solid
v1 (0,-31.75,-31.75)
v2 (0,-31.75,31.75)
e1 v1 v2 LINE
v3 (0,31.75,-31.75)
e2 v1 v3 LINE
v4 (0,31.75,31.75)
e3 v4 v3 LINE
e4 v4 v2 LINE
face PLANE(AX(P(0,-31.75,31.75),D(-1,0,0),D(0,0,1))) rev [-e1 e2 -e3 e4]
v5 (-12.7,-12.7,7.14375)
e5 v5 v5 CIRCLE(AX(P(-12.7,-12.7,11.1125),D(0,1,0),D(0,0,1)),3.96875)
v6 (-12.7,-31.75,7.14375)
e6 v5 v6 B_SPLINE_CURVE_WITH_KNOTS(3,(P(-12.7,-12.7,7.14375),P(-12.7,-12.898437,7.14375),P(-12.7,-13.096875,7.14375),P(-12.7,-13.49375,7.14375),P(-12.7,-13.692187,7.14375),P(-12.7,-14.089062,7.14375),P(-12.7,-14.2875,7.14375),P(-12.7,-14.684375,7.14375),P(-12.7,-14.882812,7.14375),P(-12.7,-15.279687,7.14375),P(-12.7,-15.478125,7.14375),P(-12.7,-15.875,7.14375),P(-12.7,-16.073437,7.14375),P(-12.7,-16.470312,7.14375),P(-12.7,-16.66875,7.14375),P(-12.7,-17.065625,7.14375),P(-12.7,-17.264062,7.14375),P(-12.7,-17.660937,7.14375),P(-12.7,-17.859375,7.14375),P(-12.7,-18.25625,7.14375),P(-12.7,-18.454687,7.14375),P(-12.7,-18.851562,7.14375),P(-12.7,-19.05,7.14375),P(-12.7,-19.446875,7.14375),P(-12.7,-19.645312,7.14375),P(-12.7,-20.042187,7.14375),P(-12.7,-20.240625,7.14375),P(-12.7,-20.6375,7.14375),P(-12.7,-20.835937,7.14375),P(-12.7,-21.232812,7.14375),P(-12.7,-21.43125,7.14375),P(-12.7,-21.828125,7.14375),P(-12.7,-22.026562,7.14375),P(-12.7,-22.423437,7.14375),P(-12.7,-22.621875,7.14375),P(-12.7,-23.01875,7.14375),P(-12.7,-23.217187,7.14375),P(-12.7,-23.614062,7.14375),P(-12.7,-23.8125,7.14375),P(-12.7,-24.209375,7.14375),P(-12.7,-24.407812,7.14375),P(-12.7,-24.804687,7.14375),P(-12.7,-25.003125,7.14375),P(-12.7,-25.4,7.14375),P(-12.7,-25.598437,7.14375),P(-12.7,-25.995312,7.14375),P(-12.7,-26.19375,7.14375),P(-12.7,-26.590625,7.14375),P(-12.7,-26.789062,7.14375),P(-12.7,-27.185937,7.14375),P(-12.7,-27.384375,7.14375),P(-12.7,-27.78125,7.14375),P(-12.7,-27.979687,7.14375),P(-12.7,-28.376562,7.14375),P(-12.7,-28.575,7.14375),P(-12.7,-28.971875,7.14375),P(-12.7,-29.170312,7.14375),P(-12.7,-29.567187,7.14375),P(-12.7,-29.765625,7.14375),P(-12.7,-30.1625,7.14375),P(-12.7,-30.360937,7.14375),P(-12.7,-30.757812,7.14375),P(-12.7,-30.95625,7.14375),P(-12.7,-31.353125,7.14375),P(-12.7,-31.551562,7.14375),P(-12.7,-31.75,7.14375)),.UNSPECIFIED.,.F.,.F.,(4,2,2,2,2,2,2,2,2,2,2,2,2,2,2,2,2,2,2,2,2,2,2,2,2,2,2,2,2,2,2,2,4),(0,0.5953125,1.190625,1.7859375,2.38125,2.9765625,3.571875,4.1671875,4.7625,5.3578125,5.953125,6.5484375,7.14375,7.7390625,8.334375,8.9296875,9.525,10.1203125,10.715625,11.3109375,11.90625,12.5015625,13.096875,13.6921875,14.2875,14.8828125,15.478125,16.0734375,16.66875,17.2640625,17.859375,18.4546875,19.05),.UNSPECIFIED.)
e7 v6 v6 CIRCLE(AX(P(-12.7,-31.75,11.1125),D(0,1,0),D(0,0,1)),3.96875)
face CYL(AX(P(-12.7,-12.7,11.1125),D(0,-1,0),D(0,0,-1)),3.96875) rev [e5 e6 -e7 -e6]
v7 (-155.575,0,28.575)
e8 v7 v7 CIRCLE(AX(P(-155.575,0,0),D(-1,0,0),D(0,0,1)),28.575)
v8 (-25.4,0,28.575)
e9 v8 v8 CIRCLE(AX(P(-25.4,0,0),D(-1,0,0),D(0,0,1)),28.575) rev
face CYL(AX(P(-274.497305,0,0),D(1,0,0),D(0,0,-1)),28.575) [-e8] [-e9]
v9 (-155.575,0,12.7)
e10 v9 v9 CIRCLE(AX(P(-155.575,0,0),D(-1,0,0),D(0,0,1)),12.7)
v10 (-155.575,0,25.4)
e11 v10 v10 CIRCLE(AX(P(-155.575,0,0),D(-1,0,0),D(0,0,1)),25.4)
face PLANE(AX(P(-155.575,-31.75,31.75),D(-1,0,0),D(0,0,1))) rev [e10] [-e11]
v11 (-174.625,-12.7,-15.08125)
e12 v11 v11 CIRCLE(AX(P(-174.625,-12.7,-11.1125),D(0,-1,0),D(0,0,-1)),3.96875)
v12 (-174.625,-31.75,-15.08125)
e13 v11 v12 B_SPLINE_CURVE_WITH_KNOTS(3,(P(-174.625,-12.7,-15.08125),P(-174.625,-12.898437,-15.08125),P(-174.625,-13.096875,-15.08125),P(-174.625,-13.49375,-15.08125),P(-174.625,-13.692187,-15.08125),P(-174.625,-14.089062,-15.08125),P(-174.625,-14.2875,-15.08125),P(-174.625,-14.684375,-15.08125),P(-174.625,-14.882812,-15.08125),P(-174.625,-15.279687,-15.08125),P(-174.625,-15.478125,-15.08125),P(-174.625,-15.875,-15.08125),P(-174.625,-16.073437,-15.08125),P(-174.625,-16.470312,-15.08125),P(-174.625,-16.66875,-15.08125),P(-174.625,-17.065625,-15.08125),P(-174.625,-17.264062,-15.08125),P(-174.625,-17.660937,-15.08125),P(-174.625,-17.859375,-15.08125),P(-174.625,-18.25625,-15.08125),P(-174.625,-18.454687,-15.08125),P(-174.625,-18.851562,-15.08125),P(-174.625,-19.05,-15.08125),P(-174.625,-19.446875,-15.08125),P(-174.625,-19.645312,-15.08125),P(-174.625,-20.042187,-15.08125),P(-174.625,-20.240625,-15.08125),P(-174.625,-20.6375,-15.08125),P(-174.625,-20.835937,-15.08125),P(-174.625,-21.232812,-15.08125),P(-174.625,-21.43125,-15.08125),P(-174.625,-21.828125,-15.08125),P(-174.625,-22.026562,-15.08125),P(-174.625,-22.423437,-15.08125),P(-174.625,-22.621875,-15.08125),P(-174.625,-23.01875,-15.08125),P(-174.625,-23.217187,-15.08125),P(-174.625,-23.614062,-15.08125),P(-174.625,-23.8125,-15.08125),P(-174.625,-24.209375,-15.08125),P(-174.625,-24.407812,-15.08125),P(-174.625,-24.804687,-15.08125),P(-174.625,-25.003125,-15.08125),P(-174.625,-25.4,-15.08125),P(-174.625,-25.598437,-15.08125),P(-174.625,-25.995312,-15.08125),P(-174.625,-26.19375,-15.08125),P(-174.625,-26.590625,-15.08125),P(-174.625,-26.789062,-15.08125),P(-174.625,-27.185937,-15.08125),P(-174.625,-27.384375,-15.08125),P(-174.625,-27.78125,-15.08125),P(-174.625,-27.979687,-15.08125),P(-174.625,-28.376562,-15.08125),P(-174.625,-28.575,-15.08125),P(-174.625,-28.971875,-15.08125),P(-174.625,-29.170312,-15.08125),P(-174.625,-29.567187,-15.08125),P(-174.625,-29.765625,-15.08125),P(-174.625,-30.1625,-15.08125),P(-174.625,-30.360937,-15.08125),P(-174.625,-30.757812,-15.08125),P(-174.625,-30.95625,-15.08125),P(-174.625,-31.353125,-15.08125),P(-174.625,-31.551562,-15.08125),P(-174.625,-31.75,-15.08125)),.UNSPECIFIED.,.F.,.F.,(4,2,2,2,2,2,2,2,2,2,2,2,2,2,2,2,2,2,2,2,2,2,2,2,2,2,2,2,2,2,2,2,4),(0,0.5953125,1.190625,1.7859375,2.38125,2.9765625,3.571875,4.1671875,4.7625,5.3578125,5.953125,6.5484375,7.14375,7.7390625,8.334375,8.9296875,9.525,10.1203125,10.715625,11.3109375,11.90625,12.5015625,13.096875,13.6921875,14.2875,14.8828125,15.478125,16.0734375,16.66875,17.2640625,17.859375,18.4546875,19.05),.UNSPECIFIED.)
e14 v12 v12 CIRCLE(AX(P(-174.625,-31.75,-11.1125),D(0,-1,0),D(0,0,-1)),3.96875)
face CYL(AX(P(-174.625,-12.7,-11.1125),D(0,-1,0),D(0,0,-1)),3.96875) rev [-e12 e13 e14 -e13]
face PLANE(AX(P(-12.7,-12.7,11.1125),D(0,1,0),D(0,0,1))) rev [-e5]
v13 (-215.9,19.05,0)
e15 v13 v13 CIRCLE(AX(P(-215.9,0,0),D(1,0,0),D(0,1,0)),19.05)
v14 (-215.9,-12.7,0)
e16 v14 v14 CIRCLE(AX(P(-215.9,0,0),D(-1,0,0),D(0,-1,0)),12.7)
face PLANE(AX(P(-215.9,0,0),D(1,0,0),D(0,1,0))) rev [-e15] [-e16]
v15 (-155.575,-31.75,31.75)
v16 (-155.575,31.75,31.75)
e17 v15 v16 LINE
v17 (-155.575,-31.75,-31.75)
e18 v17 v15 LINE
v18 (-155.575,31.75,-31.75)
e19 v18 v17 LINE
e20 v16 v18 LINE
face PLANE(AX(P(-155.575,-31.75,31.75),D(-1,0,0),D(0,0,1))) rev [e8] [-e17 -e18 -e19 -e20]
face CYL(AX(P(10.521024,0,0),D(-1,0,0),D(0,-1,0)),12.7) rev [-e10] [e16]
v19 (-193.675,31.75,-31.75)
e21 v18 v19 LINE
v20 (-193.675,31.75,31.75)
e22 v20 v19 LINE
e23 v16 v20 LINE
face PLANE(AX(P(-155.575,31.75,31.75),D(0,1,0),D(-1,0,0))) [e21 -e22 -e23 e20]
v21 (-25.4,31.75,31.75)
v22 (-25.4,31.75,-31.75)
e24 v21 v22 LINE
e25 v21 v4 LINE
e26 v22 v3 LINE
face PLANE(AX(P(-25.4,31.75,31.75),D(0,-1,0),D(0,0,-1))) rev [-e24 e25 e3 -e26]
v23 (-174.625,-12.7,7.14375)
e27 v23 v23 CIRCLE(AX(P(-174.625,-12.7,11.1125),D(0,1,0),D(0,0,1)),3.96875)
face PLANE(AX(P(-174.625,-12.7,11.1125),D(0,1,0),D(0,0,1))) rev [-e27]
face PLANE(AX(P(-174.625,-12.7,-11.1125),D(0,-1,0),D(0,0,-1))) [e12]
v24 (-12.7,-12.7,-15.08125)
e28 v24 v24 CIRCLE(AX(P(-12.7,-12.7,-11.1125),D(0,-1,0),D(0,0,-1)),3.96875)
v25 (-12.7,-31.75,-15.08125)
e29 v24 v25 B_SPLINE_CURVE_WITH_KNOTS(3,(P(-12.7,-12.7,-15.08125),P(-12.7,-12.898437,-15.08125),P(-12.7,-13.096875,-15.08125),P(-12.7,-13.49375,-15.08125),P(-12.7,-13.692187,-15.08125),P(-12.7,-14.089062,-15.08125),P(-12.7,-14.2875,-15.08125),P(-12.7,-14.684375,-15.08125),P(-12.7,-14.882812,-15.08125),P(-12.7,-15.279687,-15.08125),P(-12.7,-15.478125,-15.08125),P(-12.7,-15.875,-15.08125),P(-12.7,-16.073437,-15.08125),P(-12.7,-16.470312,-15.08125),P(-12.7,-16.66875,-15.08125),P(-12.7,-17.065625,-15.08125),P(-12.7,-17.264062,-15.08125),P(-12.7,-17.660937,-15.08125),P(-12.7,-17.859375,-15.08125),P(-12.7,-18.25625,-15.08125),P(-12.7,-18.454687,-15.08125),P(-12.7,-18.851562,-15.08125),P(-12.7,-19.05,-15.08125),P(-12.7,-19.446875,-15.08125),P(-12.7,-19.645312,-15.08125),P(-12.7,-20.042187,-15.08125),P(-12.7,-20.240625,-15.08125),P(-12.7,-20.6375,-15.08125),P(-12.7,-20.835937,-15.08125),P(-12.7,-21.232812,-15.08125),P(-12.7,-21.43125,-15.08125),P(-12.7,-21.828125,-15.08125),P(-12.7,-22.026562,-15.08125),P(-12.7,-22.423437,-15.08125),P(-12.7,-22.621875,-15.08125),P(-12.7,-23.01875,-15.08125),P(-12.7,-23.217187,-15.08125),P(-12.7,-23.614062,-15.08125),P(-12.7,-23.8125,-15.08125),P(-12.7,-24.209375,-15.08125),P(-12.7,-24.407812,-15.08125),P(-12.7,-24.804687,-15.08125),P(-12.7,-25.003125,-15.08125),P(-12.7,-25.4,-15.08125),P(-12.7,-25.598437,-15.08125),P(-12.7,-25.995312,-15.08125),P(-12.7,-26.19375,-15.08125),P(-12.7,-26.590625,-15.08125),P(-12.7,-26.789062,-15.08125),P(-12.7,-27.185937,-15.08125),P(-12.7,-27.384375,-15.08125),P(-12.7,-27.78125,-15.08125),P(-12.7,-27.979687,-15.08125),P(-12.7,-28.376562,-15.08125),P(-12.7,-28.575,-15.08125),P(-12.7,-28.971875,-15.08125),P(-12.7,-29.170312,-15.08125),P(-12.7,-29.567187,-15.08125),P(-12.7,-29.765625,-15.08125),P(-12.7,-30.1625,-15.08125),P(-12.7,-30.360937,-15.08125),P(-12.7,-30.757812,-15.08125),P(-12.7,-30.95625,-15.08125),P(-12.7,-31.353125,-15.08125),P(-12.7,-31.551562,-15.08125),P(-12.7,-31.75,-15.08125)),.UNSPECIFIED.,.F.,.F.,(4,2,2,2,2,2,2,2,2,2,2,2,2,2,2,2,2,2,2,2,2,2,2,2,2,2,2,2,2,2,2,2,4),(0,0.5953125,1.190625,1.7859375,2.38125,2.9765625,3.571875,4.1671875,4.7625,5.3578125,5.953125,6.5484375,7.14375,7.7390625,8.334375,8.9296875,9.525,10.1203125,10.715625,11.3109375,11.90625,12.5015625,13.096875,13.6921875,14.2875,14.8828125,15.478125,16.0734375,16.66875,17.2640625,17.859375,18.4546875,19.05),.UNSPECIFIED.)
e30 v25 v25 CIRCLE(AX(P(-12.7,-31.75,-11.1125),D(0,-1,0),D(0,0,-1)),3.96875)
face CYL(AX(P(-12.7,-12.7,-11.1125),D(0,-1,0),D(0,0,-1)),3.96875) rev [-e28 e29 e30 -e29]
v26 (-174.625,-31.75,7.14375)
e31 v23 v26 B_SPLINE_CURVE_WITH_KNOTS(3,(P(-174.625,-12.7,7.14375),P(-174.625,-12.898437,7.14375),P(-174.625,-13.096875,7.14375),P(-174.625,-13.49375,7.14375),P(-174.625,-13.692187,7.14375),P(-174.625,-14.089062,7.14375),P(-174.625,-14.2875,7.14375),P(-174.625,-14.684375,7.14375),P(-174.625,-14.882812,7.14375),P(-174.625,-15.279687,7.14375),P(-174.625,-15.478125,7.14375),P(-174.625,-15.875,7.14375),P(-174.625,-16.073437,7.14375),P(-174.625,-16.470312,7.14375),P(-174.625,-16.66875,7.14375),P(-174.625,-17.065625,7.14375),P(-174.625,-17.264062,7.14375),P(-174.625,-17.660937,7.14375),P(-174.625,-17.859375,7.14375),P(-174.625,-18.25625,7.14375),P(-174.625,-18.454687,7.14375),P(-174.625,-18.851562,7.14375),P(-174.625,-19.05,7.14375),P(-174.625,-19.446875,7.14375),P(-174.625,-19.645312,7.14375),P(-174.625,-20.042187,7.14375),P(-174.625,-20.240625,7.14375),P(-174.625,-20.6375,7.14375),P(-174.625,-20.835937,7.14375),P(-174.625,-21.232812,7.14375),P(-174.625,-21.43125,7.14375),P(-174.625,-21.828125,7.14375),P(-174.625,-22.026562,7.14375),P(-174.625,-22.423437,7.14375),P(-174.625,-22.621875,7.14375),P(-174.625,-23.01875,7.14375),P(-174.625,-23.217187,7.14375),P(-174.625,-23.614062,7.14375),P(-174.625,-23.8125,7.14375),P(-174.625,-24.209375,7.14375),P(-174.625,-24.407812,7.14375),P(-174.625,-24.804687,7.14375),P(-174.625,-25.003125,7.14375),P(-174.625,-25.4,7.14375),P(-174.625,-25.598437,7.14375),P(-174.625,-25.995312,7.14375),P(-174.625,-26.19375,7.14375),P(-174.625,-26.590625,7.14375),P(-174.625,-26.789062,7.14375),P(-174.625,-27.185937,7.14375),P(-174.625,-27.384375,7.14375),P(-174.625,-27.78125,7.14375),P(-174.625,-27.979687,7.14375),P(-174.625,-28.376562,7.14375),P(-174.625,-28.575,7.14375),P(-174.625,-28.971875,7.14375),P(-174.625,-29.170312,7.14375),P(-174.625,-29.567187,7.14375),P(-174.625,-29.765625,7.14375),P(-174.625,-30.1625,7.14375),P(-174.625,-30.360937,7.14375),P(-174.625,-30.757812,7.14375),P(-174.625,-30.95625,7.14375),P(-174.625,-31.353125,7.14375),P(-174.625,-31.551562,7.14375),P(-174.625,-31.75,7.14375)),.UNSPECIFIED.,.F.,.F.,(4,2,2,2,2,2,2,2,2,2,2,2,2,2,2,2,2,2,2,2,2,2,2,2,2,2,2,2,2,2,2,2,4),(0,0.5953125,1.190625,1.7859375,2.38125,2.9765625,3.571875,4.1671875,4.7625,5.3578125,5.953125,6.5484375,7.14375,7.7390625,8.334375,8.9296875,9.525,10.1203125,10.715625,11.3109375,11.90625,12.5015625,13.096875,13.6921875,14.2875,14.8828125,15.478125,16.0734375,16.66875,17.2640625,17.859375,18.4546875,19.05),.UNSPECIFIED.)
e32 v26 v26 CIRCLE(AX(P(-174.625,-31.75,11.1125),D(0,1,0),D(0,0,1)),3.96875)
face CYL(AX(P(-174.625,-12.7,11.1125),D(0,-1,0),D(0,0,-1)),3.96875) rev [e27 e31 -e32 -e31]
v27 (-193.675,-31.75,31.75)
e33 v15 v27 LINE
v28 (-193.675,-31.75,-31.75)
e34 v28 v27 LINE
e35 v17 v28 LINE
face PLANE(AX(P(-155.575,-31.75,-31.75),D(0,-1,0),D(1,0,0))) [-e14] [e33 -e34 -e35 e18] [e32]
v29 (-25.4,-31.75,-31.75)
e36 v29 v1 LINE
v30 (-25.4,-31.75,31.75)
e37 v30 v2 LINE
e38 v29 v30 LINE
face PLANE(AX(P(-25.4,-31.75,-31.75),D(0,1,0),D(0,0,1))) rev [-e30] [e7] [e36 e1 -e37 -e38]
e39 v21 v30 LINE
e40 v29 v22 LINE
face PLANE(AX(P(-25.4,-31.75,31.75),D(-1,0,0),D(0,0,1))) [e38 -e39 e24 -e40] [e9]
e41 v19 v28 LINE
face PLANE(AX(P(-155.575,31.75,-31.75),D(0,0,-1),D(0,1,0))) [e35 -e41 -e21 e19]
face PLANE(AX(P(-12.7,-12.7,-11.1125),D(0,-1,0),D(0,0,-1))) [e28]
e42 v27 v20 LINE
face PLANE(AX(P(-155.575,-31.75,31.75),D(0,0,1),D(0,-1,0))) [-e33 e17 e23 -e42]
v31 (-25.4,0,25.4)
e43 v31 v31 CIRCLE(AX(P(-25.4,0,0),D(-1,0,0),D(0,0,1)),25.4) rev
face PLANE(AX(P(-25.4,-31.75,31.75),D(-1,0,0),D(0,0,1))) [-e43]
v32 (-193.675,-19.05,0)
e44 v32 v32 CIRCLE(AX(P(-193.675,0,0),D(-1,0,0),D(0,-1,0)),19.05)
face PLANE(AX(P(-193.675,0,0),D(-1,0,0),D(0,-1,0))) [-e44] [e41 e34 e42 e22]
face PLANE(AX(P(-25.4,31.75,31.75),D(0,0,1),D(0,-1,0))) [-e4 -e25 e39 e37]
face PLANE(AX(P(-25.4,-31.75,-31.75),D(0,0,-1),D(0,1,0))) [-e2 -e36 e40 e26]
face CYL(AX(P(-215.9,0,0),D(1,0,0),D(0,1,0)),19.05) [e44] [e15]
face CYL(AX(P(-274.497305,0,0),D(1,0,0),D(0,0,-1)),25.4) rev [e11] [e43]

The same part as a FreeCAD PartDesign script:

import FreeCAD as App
import Part
import Sketcher

V = App.Vector
Q = App.Units.Quantity

doc = App.newDocument("Part")
body = doc.addObject("PartDesign::Body", "Body")

sketch1 = body.newObject("Sketcher::SketchObject", "Sketch")
sketch1.AttachmentSupport = (doc.getObject("YZ_Plane"), [""])
sketch1.MapMode = "FlatFace"
sketch1.addGeometry(Part.LineSegment(V(31.75, 31.75, 0), V(-31.75, 31.75, 0)), False)
sketch1.addGeometry(Part.LineSegment(V(-31.75, 31.75, 0), V(-31.75, -31.75, 0)), False)
sketch1.addGeometry(Part.LineSegment(V(-31.75, -31.75, 0), V(31.75, -31.75, 0)), False)
sketch1.addGeometry(Part.LineSegment(V(31.75, -31.75, 0), V(31.75, 31.75, 0)), False)
sketch1.addConstraint(Sketcher.Constraint("Coincident", 0, 2, 1, 1))
sketch1.addConstraint(Sketcher.Constraint("Coincident", 1, 2, 2, 1))
sketch1.addConstraint(Sketcher.Constraint("Coincident", 2, 2, 3, 1))
sketch1.addConstraint(Sketcher.Constraint("Coincident", 3, 2, 0, 1))
sketch1.addConstraint(Sketcher.Constraint("Horizontal", 0))
sketch1.addConstraint(Sketcher.Constraint("Vertical", 1))
sketch1.addConstraint(Sketcher.Constraint("Horizontal", 2))
sketch1.addConstraint(Sketcher.Constraint("Vertical", 3))
sketch1.addConstraint(Sketcher.Constraint("Symmetric", 0, 2, 2, 2, -1, 1))
sketch1.addConstraint(Sketcher.Constraint("Equal", 2, 1))
sketch1.addConstraint(Sketcher.Constraint("DistanceX", 0, 2, 0, 1, Q("2.5 in")))
pad1 = body.newObject("PartDesign::Pad", "Pad")
pad1.Profile = sketch1
pad1.Length = Q("1 in")
pad1.Reversed = True

sketch2 = body.newObject("Sketcher::SketchObject", "Sketch001")
sketch2.AttachmentSupport = (doc.getObject("YZ_Plane"), [""])
sketch2.MapMode = "FlatFace"
sketch2.addGeometry(Part.Circle(V(0, 0, 0), V(0, 0, 1), 28.575), False)
sketch2.addGeometry(Part.Circle(V(0, 0, 0), V(0, 0, 1), 25.4), False)
sketch2.addConstraint(Sketcher.Constraint("Coincident", 0, 3, -1, 1))
sketch2.addConstraint(Sketcher.Constraint("Coincident", 1, 3, -1, 1))
sketch2.addConstraint(Sketcher.Constraint("Diameter", 1, Q("2 in")))
sketch2.addConstraint(Sketcher.Constraint("Diameter", 0, Q("2.25 in")))
pad2 = body.newObject("PartDesign::Pad", "Pad001")
pad2.Profile = sketch2
pad2.Length = Q("7.625 in")
pad2.Reversed = True

sketch3 = body.newObject("Sketcher::SketchObject", "Sketch002")
sketch3.AttachmentSupport = (doc.getObject("YZ_Plane"), [""])
sketch3.MapMode = "FlatFace"
sketch3.AttachmentOffset = App.Placement(V(0, 0, -7.625 * 25.4), App.Rotation())
sketch3.addGeometry(Part.LineSegment(V(31.75, -31.75, 0), V(-31.75, -31.75, 0)), False)
sketch3.addGeometry(Part.LineSegment(V(-31.75, -31.75, 0), V(-31.75, 31.75, 0)), False)
sketch3.addGeometry(Part.LineSegment(V(-31.75, 31.75, 0), V(31.75, 31.75, 0)), False)
sketch3.addGeometry(Part.LineSegment(V(31.75, 31.75, 0), V(31.75, -31.75, 0)), False)
sketch3.addConstraint(Sketcher.Constraint("Coincident", 0, 2, 1, 1))
sketch3.addConstraint(Sketcher.Constraint("Coincident", 1, 2, 2, 1))
sketch3.addConstraint(Sketcher.Constraint("Coincident", 2, 2, 3, 1))
sketch3.addConstraint(Sketcher.Constraint("Coincident", 3, 2, 0, 1))
sketch3.addConstraint(Sketcher.Constraint("Horizontal", 0))
sketch3.addConstraint(Sketcher.Constraint("Vertical", 1))
sketch3.addConstraint(Sketcher.Constraint("Horizontal", 2))
sketch3.addConstraint(Sketcher.Constraint("Vertical", 3))
sketch3.addConstraint(Sketcher.Constraint("Symmetric", 0, 2, 2, 2, -1, 1))
sketch3.addConstraint(Sketcher.Constraint("Equal", 2, 1))
sketch3.addConstraint(Sketcher.Constraint("DistanceX", 0, 2, 0, 1, Q("2.5 in")))
pad3 = body.newObject("PartDesign::Pad", "Pad002")
pad3.Profile = sketch3
pad3.Length = Q("1.5 in")

sketch4 = body.newObject("Sketcher::SketchObject", "Sketch003")
sketch4.AttachmentSupport = (doc.getObject("YZ_Plane"), [""])
sketch4.MapMode = "FlatFace"
sketch4.AttachmentOffset = App.Placement(V(0, 0, -7.625 * 25.4), App.Rotation())
sketch4.addGeometry(Part.Circle(V(0, 0, 0), V(0, 0, 1), 19.05), False)
sketch4.addConstraint(Sketcher.Constraint("Coincident", 0, 3, -1, 1))
sketch4.addConstraint(Sketcher.Constraint("Diameter", 0, Q("1.5 in")))
pad4 = body.newObject("PartDesign::Pad", "Pad003")
pad4.Profile = sketch4
pad4.Length = Q("0.875 in")
pad4.Reversed = True

sketch5 = body.newObject("Sketcher::SketchObject", "Sketch004")
sketch5.AttachmentSupport = (doc.getObject("YZ_Plane"), [""])
sketch5.MapMode = "FlatFace"
sketch5.AttachmentOffset = App.Placement(V(0, 0, -8.5 * 25.4), App.Rotation())
sketch5.addGeometry(Part.Circle(V(0, 0, 0), V(0, 0, 1), 12.7), False)
sketch5.addConstraint(Sketcher.Constraint("Coincident", 0, 3, -1, 1))
sketch5.addConstraint(Sketcher.Constraint("Diameter", 0, Q("1 in")))
pocket1 = body.newObject("PartDesign::Pocket", "Pocket")
pocket1.Profile = sketch5
pocket1.Type = "UpToFirst"
pocket1.Reversed = True

sketch6 = body.newObject("Sketcher::SketchObject", "Sketch005")
sketch6.AttachmentSupport = (doc.getObject("XZ_Plane"), [""])
sketch6.MapMode = "FlatFace"
sketch6.AttachmentOffset = App.Placement(V(0, 0, 1.25 * 25.4), App.Rotation())
sketch6.addGeometry(Part.Circle(V(-12.7, 11.1125, 0), V(0, 0, 1), 3.96875), False)
sketch6.addGeometry(Part.Circle(V(-12.7, -11.1125, 0), V(0, 0, 1), 3.96875), False)
sketch6.addGeometry(Part.Circle(V(-174.625, -11.1125, 0), V(0, 0, 1), 3.96875), False)
sketch6.addGeometry(Part.Circle(V(-174.625, 11.1125, 0), V(0, 0, 1), 3.96875), False)
sketch6.addConstraint(Sketcher.Constraint("Equal", 0, 1))
sketch6.addConstraint(Sketcher.Constraint("Equal", 1, 2))
sketch6.addConstraint(Sketcher.Constraint("Equal", 2, 3))
sketch6.addConstraint(Sketcher.Constraint("Symmetric", 0, 3, 1, 3, -1))
sketch6.addConstraint(Sketcher.Constraint("Symmetric", 2, 3, 3, 3, -1))
sketch6.addConstraint(Sketcher.Constraint("Horizontal", 1, 3, 2, 3))
sketch6.addConstraint(Sketcher.Constraint("Diameter", 0, Q("0.3125 in")))
sketch6.addConstraint(Sketcher.Constraint("DistanceX", 0, 3, -1, 1, Q("0.5 in")))
sketch6.addConstraint(Sketcher.Constraint("DistanceY", -1, 1, 0, 3, Q("0.4375 in")))
sketch6.addConstraint(Sketcher.Constraint("DistanceX", 2, 3, -1, 1, Q("6.875 in")))
pocket2 = body.newObject("PartDesign::Pocket", "Pocket001")
pocket2.Profile = sketch6
pocket2.Length = Q("0.75 in")

doc.recompute()
